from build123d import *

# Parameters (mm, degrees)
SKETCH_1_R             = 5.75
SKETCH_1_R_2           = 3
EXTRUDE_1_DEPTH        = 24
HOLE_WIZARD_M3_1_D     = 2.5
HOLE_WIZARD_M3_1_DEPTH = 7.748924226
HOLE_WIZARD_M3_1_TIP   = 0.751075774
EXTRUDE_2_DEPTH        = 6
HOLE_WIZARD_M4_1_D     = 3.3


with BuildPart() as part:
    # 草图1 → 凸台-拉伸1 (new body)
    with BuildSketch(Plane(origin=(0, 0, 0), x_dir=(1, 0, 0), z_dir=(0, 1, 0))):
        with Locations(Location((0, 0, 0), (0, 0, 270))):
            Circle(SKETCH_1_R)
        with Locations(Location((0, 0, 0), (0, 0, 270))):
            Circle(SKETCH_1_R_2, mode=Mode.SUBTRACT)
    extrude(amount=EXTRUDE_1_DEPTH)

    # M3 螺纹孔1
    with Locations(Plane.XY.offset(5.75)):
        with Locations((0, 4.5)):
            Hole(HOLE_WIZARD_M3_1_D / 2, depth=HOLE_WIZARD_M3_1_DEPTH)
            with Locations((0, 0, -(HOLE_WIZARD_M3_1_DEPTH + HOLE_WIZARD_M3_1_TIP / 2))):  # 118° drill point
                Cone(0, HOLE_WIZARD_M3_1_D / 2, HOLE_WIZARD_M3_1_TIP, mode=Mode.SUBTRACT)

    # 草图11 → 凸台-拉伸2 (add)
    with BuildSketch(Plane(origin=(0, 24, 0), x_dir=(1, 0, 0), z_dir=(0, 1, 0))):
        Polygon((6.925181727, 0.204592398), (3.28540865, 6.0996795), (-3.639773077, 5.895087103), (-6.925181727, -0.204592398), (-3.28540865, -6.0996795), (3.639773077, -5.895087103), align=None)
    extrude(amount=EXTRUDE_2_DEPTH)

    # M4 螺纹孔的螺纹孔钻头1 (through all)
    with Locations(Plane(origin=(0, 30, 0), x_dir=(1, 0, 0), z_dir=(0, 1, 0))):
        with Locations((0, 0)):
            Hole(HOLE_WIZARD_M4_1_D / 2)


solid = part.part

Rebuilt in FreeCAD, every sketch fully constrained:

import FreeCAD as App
import Part
import Sketcher
from FreeCAD import Vector

doc = App.newDocument("Part")
params = doc.addObject("Spreadsheet::Sheet", "Params")
for row, (alias, value) in enumerate([
    ("sketch1_diameter", "6 mm"),
    ("sketch1_diameter2", "11.5 mm"),
    ("pad1_length", "24 mm"),
    ("sketch2_diameter", "2.5 mm"),
    ("hole_diameter", "2.5 mm"),
    ("hole_depth", "7.748924 mm"),
    ("pad2_length", "6 mm"),
    ("sketch4_diameter", "3.3 mm"),
    ("hole2_diameter", "3.3 mm"),
], start=1):
    params.set(f"A{row}", alias)
    params.set(f"B{row}", "=" + value)
    params.setAlias(f"B{row}", alias)

body = doc.addObject("PartDesign::Body", "Body")

# Sketch on XZ plane
sketch1 = body.newObject("Sketcher::SketchObject", "Sketch")
sketch1.AttachmentSupport = (doc.getObject("XZ_Plane"), [""])
sketch1.MapMode = "FlatFace"
sketch1.addGeometry([
    Part.Circle(Vector(0, 0, 0), Vector(0, 0, 1), 5.75),
    Part.Circle(Vector(0, 0, 0), Vector(0, 0, 1), 3),
], False)
sketch1.addConstraint([
    Sketcher.Constraint("Coincident", 0, 3, -1, 1),
    Sketcher.Constraint("Coincident", 1, 3, -1, 1),
    Sketcher.Constraint("Diameter", 1, 6.0),
    Sketcher.Constraint("Diameter", 0, 11.5),
])
sketch1.setExpression("Constraints[2]", "Params.sketch1_diameter")
sketch1.setExpression("Constraints[3]", "Params.sketch1_diameter2")
pad1 = body.newObject("PartDesign::Pad", "Pad")
pad1.Profile = sketch1
pad1.setExpression("Length", "Params.pad1_length")
pad1.Reversed = True

# Sketch on XY plane
sketch2 = body.newObject("Sketcher::SketchObject", "Sketch001")
sketch2.AttachmentSupport = (doc.getObject("XY_Plane"), [""])
sketch2.MapMode = "FlatFace"
sketch2.AttachmentOffset = App.Placement(Vector(0, 0, 5.75), App.Rotation())
sketch2.addGeometry(Part.Circle(Vector(0, 4.5, 0), Vector(0, 0, 1), 1.25), False)
sketch2.addConstraint([
    Sketcher.Constraint("PointOnObject", 0, 3, -2),
    Sketcher.Constraint("Diameter", 0, 2.5),
    Sketcher.Constraint("DistanceY", -1, 1, 0, 3, 4.5),
])
sketch2.setExpression("Constraints[1]", "Params.sketch2_diameter")
doc.recompute()
hole = body.newObject("PartDesign::Hole", "Hole")
hole.Profile = sketch2
hole.ThreadType = "None"
hole.setExpression("Diameter", "Params.hole_diameter")
hole.DepthType = "Dimension"
hole.setExpression("Depth", "Params.hole_depth")
hole.DrillPoint = "Angled"
hole.DrillPointAngle = 118

# Sketch on XZ plane
sketch3 = body.newObject("Sketcher::SketchObject", "Sketch002")
sketch3.AttachmentSupport = (doc.getObject("XZ_Plane"), [""])
sketch3.MapMode = "FlatFace"
sketch3.AttachmentOffset = App.Placement(Vector(0, 0, -24), App.Rotation())
sketch3.addGeometry([
    Part.LineSegment(Vector(6.925182, -0.204592, 0), Vector(3.285409, -6.099679, 0)),  # 0
    Part.LineSegment(Vector(3.285409, -6.099679, 0), Vector(-3.639773, -5.895087, 0)),  # 1
    Part.LineSegment(Vector(-3.639773, -5.895087, 0), Vector(-6.925182, 0.204592, 0)),  # 2
    Part.LineSegment(Vector(-6.925182, 0.204592, 0), Vector(-3.285409, 6.099679, 0)),  # 3
    Part.LineSegment(Vector(-3.285409, 6.099679, 0), Vector(3.639773, 5.895087, 0)),  # 4
    Part.LineSegment(Vector(3.639773, 5.895087, 0), Vector(6.925182, -0.204592, 0)),  # 5
], False)
sketch3.addConstraint([
    Sketcher.Constraint("Coincident", 0, 2, 1, 1),
    Sketcher.Constraint("Coincident", 1, 2, 2, 1),
    Sketcher.Constraint("Coincident", 2, 2, 3, 1),
    Sketcher.Constraint("Coincident", 3, 2, 4, 1),
    Sketcher.Constraint("Coincident", 4, 2, 5, 1),
    Sketcher.Constraint("Coincident", 5, 2, 0, 1),
    Sketcher.Constraint("Symmetric", 0, 2, 3, 2, -1, 1),
    Sketcher.Constraint("Symmetric", 1, 2, 4, 2, -1, 1),
    Sketcher.Constraint("Symmetric", 2, 2, 5, 2, -1, 1),
    Sketcher.Constraint("Equal", 0, 1),
    Sketcher.Constraint("Equal", 1, 2),
    Sketcher.Constraint("DistanceX", -1, 1, 0, 2, 3.285409),
    Sketcher.Constraint("DistanceY", 0, 2, -1, 1, 6.099679),
    Sketcher.Constraint("DistanceX", 2, 2, -1, 1, 6.925182),
    Sketcher.Constraint("DistanceX", 1, 2, 0, 2, 6.925182),
])
pad2 = body.newObject("PartDesign::Pad", "Pad001")
pad2.Profile = sketch3
pad2.setExpression("Length", "Params.pad2_length")
pad2.Reversed = True

# Sketch on XZ plane
sketch4 = body.newObject("Sketcher::SketchObject", "Sketch003")
sketch4.AttachmentSupport = (doc.getObject("XZ_Plane"), [""])
sketch4.MapMode = "FlatFace"
sketch4.AttachmentOffset = App.Placement(Vector(0, 0, -30), App.Rotation())
sketch4.addGeometry(Part.Circle(Vector(0, 0, 0), Vector(0, 0, 1), 1.65), False)
sketch4.addConstraint([
    Sketcher.Constraint("Coincident", 0, 3, -1, 1),
    Sketcher.Constraint("Diameter", 0, 3.3),
])
sketch4.setExpression("Constraints[1]", "Params.sketch4_diameter")
doc.recompute()
hole2 = body.newObject("PartDesign::Hole", "Hole001")
hole2.Profile = sketch4
hole2.ThreadType = "None"
hole2.setExpression("Diameter", "Params.hole2_diameter")
hole2.DepthType = "ThroughAll"
hole2.Reversed = True

doc.recompute()
